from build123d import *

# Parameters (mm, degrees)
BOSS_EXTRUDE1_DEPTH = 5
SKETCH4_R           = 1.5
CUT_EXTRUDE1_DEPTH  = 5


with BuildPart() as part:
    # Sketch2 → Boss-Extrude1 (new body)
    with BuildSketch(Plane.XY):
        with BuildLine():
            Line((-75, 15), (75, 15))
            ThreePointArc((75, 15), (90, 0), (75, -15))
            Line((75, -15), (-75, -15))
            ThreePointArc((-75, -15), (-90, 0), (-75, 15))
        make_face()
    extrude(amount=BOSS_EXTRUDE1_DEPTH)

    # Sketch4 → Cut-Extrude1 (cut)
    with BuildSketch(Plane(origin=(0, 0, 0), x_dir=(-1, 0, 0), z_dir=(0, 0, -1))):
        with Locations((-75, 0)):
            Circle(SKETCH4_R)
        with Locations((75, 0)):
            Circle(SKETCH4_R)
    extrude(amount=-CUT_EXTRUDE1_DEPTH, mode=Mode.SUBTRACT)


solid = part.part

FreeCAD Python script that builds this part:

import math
import FreeCAD as App
import Part
import Sketcher

doc = App.newDocument("Part")
body = doc.addObject("PartDesign::Body", "Body")

sketch1 = body.newObject("Sketcher::SketchObject", "Sketch")
sketch1.AttachmentSupport = (doc.getObject("XY_Plane"), [""])
sketch1.MapMode = "FlatFace"
sketch1.addGeometry(Part.LineSegment(App.Vector(75, 15, 0), App.Vector(-75, 15, 0)), False)
sketch1.addGeometry(Part.ArcOfCircle(Part.Circle(App.Vector(-75, 0, 0), App.Vector(0, 0, 1), 15), math.radians(90), math.radians(270)), False)
sketch1.addGeometry(Part.LineSegment(App.Vector(-75, -15, 0), App.Vector(75, -15, 0)), False)
sketch1.addGeometry(Part.ArcOfCircle(Part.Circle(App.Vector(75, 0, 0), App.Vector(0, 0, 1), 15), math.radians(-90), math.radians(90)), False)
sketch1.addConstraint(Sketcher.Constraint("Tangent", 0, 2, 1, 1))
sketch1.addConstraint(Sketcher.Constraint("Tangent", 1, 2, 2, 1))
sketch1.addConstraint(Sketcher.Constraint("Tangent", 2, 2, 3, 1))
sketch1.addConstraint(Sketcher.Constraint("Tangent", 3, 2, 0, 1))
sketch1.addConstraint(Sketcher.Constraint("Horizontal", 0))
sketch1.addConstraint(Sketcher.Constraint("Horizontal", 2))
sketch1.addConstraint(Sketcher.Constraint("Symmetric", 1, 3, 3, 3, -1, 1))
sketch1.addConstraint(Sketcher.Constraint("Radius", 1, 15.0))
sketch1.addConstraint(Sketcher.Constraint("DistanceX", 0, 2, 0, 1, 150.0))
pad1 = body.newObject("PartDesign::Pad", "Pad")
pad1.Profile = sketch1
pad1.Length = 5

sketch2 = body.newObject("Sketcher::SketchObject", "Sketch001")
sketch2.AttachmentSupport = (doc.getObject("XY_Plane"), [""])
sketch2.MapMode = "FlatFace"
sketch2.addGeometry(Part.Circle(App.Vector(75, 0, 0), App.Vector(0, 0, 1), 1.5), False)
sketch2.addGeometry(Part.Circle(App.Vector(-75, 0, 0), App.Vector(0, 0, 1), 1.5), False)
sketch2.addConstraint(Sketcher.Constraint("Equal", 0, 1))
sketch2.addConstraint(Sketcher.Constraint("Symmetric", 0, 3, 1, 3, -1, 1))
sketch2.addConstraint(Sketcher.Constraint("PointOnObject", 0, 3, -1))
sketch2.addConstraint(Sketcher.Constraint("Diameter", 0, 3.0))
sketch2.addConstraint(Sketcher.Constraint("DistanceX", -1, 1, 0, 3, 75.0))
pocket1 = body.newObject("PartDesign::Pocket", "Pocket")
pocket1.Profile = sketch2
pocket1.Length = 5
pocket1.Reversed = True

doc.recompute()
